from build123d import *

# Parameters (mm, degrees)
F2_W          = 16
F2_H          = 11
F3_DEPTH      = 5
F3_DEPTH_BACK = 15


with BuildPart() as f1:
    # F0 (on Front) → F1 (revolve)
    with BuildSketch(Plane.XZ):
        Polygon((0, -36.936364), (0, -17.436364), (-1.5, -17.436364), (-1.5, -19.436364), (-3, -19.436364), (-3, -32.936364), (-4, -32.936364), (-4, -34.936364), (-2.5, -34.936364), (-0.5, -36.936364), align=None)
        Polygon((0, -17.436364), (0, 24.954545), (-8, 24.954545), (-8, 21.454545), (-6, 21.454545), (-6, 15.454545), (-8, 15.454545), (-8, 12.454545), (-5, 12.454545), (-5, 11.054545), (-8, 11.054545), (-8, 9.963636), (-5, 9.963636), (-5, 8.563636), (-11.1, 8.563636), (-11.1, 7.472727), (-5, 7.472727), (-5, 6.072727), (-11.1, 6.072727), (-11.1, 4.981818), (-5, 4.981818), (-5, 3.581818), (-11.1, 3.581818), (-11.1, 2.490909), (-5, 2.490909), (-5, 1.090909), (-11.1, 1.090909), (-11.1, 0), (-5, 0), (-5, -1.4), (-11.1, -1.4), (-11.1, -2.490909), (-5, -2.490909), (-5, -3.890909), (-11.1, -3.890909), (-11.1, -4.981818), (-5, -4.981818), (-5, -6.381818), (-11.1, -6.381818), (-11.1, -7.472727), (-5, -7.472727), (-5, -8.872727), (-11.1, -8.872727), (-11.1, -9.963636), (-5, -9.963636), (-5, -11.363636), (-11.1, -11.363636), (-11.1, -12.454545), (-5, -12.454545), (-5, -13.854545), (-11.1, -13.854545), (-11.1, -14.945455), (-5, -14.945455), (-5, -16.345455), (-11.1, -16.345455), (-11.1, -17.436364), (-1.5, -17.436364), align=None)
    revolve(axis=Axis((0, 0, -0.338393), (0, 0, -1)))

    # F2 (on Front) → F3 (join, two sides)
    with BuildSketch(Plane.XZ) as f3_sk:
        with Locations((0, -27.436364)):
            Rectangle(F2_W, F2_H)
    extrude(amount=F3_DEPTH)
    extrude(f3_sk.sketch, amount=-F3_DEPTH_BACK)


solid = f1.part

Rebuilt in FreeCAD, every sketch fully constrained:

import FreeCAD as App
import Part
import Sketcher

V = App.Vector
Q = App.Units.Quantity

doc = App.newDocument("Part")
body = doc.addObject("PartDesign::Body", "Body")

# Sketch on XZ plane
sketch1 = body.newObject("Sketcher::SketchObject", "Sketch")
sketch1.AttachmentSupport = (doc.getObject("XZ_Plane"), [""])
sketch1.MapMode = "FlatFace"
sketch1.addGeometry([
    Part.LineSegment(V(0, -36.9, 0), V(0, 25, 0)),  # 0
    Part.LineSegment(V(0, 25, 0), V(-8, 25, 0)),  # 1
    Part.LineSegment(V(-8, 25, 0), V(-8, 21.5, 0)),  # 2
    Part.LineSegment(V(-8, 21.5, 0), V(-6, 21.5, 0)),  # 3
    Part.LineSegment(V(-6, 21.5, 0), V(-6, 15.5, 0)),  # 4
    Part.LineSegment(V(-6, 15.5, 0), V(-8, 15.5, 0)),  # 5
    Part.LineSegment(V(-8, 15.5, 0), V(-8, 12.5, 0)),  # 6
    Part.LineSegment(V(-8, 12.5, 0), V(-5, 12.5, 0)),  # 7
    Part.LineSegment(V(-5, 12.5, 0), V(-5, 11.1, 0)),  # 8
    Part.LineSegment(V(-5, 11.1, 0), V(-8, 11.1, 0)),  # 9
    Part.LineSegment(V(-8, 11.1, 0), V(-8, 10, 0)),  # 10
    Part.LineSegment(V(-8, 10, 0), V(-5, 10, 0)),  # 11
    Part.LineSegment(V(-5, 10, 0), V(-5, 8.6, 0)),  # 12
    Part.LineSegment(V(-5, 8.6, 0), V(-11.1, 8.6, 0)),  # 13
    Part.LineSegment(V(-11.1, 8.6, 0), V(-11.1, 7.5, 0)),  # 14
    Part.LineSegment(V(-11.1, 7.5, 0), V(-5, 7.5, 0)),  # 15
    Part.LineSegment(V(-5, 7.5, 0), V(-5, 6.1, 0)),  # 16
    Part.LineSegment(V(-5, 6.1, 0), V(-11.1, 6.1, 0)),  # 17
    Part.LineSegment(V(-11.1, 6.1, 0), V(-11.1, 5, 0)),  # 18
    Part.LineSegment(V(-11.1, 5, 0), V(-5, 5, 0)),  # 19
    Part.LineSegment(V(-5, 5, 0), V(-5, 3.6, 0)),  # 20
    Part.LineSegment(V(-5, 3.6, 0), V(-11.1, 3.6, 0)),  # 21
    Part.LineSegment(V(-11.1, 3.6, 0), V(-11.1, 2.5, 0)),  # 22
    Part.LineSegment(V(-11.1, 2.5, 0), V(-5, 2.5, 0)),  # 23
    Part.LineSegment(V(-5, 2.5, 0), V(-5, 1.1, 0)),  # 24
    Part.LineSegment(V(-5, 1.1, 0), V(-11.1, 1.1, 0)),  # 25
    Part.LineSegment(V(-11.1, 1.1, 0), V(-11.1, 0, 0)),  # 26
    Part.LineSegment(V(-11.1, 0, 0), V(-5, 0, 0)),  # 27
    Part.LineSegment(V(-5, 0, 0), V(-5, -1.4, 0)),  # 28
    Part.LineSegment(V(-5, -1.4, 0), V(-11.1, -1.4, 0)),  # 29
    Part.LineSegment(V(-11.1, -1.4, 0), V(-11.1, -2.5, 0)),  # 30
    Part.LineSegment(V(-11.1, -2.5, 0), V(-5, -2.5, 0)),  # 31
    Part.LineSegment(V(-5, -2.5, 0), V(-5, -3.9, 0)),  # 32
    Part.LineSegment(V(-5, -3.9, 0), V(-11.1, -3.9, 0)),  # 33
    Part.LineSegment(V(-11.1, -3.9, 0), V(-11.1, -5, 0)),  # 34
    Part.LineSegment(V(-11.1, -5, 0), V(-5, -5, 0)),  # 35
    Part.LineSegment(V(-5, -5, 0), V(-5, -6.4, 0)),  # 36
    Part.LineSegment(V(-5, -6.4, 0), V(-11.1, -6.4, 0)),  # 37
    Part.LineSegment(V(-11.1, -6.4, 0), V(-11.1, -7.5, 0)),  # 38
    Part.LineSegment(V(-11.1, -7.5, 0), V(-5, -7.5, 0)),  # 39
    Part.LineSegment(V(-5, -7.5, 0), V(-5, -8.9, 0)),  # 40
    Part.LineSegment(V(-5, -8.9, 0), V(-11.1, -8.9, 0)),  # 41
    Part.LineSegment(V(-11.1, -8.9, 0), V(-11.1, -10, 0)),  # 42
    Part.LineSegment(V(-11.1, -10, 0), V(-5, -10, 0)),  # 43
    Part.LineSegment(V(-5, -10, 0), V(-5, -11.4, 0)),  # 44
    Part.LineSegment(V(-5, -11.4, 0), V(-11.1, -11.4, 0)),  # 45
    Part.LineSegment(V(-11.1, -11.4, 0), V(-11.1, -12.5, 0)),  # 46
    Part.LineSegment(V(-11.1, -12.5, 0), V(-5, -12.5, 0)),  # 47
    Part.LineSegment(V(-5, -12.5, 0), V(-5, -13.9, 0)),  # 48
    Part.LineSegment(V(-5, -13.9, 0), V(-11.1, -13.9, 0)),  # 49
    Part.LineSegment(V(-11.1, -13.9, 0), V(-11.1, -14.9, 0)),  # 50
    Part.LineSegment(V(-11.1, -14.9, 0), V(-5, -14.9, 0)),  # 51
    Part.LineSegment(V(-5, -14.9, 0), V(-5, -16.3, 0)),  # 52
    Part.LineSegment(V(-5, -16.3, 0), V(-11.1, -16.3, 0)),  # 53
    Part.LineSegment(V(-11.1, -16.3, 0), V(-11.1, -17.4, 0)),  # 54
    Part.LineSegment(V(-11.1, -17.4, 0), V(-1.5, -17.4, 0)),  # 55
    Part.LineSegment(V(-1.5, -17.4, 0), V(-1.5, -19.4, 0)),  # 56
    Part.LineSegment(V(-1.5, -19.4, 0), V(-3, -19.4, 0)),  # 57
    Part.LineSegment(V(-3, -19.4, 0), V(-3, -32.9, 0)),  # 58
    Part.LineSegment(V(-3, -32.9, 0), V(-4, -32.9, 0)),  # 59
    Part.LineSegment(V(-4, -32.9, 0), V(-4, -34.9, 0)),  # 60
    Part.LineSegment(V(-4, -34.9, 0), V(-2.5, -34.9, 0)),  # 61
    Part.LineSegment(V(-2.5, -34.9, 0), V(-0.5, -36.9, 0)),  # 62
    Part.LineSegment(V(-0.5, -36.9, 0), V(0, -36.9, 0)),  # 63
], False)
sketch1.addConstraint([
    Sketcher.Constraint("Coincident", 0, 2, 1, 1),
    Sketcher.Constraint("Coincident", 1, 2, 2, 1),
    Sketcher.Constraint("Coincident", 2, 2, 3, 1),
    Sketcher.Constraint("Coincident", 3, 2, 4, 1),
    Sketcher.Constraint("Coincident", 4, 2, 5, 1),
    Sketcher.Constraint("Coincident", 5, 2, 6, 1),
    Sketcher.Constraint("Coincident", 6, 2, 7, 1),
    Sketcher.Constraint("Coincident", 7, 2, 8, 1),
    Sketcher.Constraint("Coincident", 8, 2, 9, 1),
    Sketcher.Constraint("Coincident", 9, 2, 10, 1),
    Sketcher.Constraint("Coincident", 10, 2, 11, 1),
    Sketcher.Constraint("Coincident", 11, 2, 12, 1),
    Sketcher.Constraint("Coincident", 12, 2, 13, 1),
    Sketcher.Constraint("Coincident", 13, 2, 14, 1),
    Sketcher.Constraint("Coincident", 14, 2, 15, 1),
    Sketcher.Constraint("Coincident", 15, 2, 16, 1),
    Sketcher.Constraint("Coincident", 16, 2, 17, 1),
    Sketcher.Constraint("Coincident", 17, 2, 18, 1),
    Sketcher.Constraint("Coincident", 18, 2, 19, 1),
    Sketcher.Constraint("Coincident", 19, 2, 20, 1),
    Sketcher.Constraint("Coincident", 20, 2, 21, 1),
    Sketcher.Constraint("Coincident", 21, 2, 22, 1),
    Sketcher.Constraint("Coincident", 22, 2, 23, 1),
    Sketcher.Constraint("Coincident", 23, 2, 24, 1),
    Sketcher.Constraint("Coincident", 24, 2, 25, 1),
    Sketcher.Constraint("Coincident", 25, 2, 26, 1),
    Sketcher.Constraint("Coincident", 26, 2, 27, 1),
    Sketcher.Constraint("Coincident", 27, 2, 28, 1),
    Sketcher.Constraint("Coincident", 28, 2, 29, 1),
    Sketcher.Constraint("Coincident", 29, 2, 30, 1),
    Sketcher.Constraint("Coincident", 30, 2, 31, 1),
    Sketcher.Constraint("Coincident", 31, 2, 32, 1),
    Sketcher.Constraint("Coincident", 32, 2, 33, 1),
    Sketcher.Constraint("Coincident", 33, 2, 34, 1),
    Sketcher.Constraint("Coincident", 34, 2, 35, 1),
    Sketcher.Constraint("Coincident", 35, 2, 36, 1),
    Sketcher.Constraint("Coincident", 36, 2, 37, 1),
    Sketcher.Constraint("Coincident", 37, 2, 38, 1),
    Sketcher.Constraint("Coincident", 38, 2, 39, 1),
    Sketcher.Constraint("Coincident", 39, 2, 40, 1),
    Sketcher.Constraint("Coincident", 40, 2, 41, 1),
    Sketcher.Constraint("Coincident", 41, 2, 42, 1),
    Sketcher.Constraint("Coincident", 42, 2, 43, 1),
    Sketcher.Constraint("Coincident", 43, 2, 44, 1),
    Sketcher.Constraint("Coincident", 44, 2, 45, 1),
    Sketcher.Constraint("Coincident", 45, 2, 46, 1),
    Sketcher.Constraint("Coincident", 46, 2, 47, 1),
    Sketcher.Constraint("Coincident", 47, 2, 48, 1),
    Sketcher.Constraint("Coincident", 48, 2, 49, 1),
    Sketcher.Constraint("Coincident", 49, 2, 50, 1),
    Sketcher.Constraint("Coincident", 50, 2, 51, 1),
    Sketcher.Constraint("Coincident", 51, 2, 52, 1),
    Sketcher.Constraint("Coincident", 52, 2, 53, 1),
    Sketcher.Constraint("Coincident", 53, 2, 54, 1),
    Sketcher.Constraint("Coincident", 54, 2, 55, 1),
    Sketcher.Constraint("Coincident", 55, 2, 56, 1),
    Sketcher.Constraint("Coincident", 56, 2, 57, 1),
    Sketcher.Constraint("Coincident", 57, 2, 58, 1),
    Sketcher.Constraint("Coincident", 58, 2, 59, 1),
    Sketcher.Constraint("Coincident", 59, 2, 60, 1),
    Sketcher.Constraint("Coincident", 60, 2, 61, 1),
    Sketcher.Constraint("Coincident", 61, 2, 62, 1),
    Sketcher.Constraint("Coincident", 62, 2, 63, 1),
    Sketcher.Constraint("Coincident", 63, 2, 0, 1),
    Sketcher.Constraint("Vertical", 0),
    Sketcher.Constraint("Horizontal", 1),
    Sketcher.Constraint("Vertical", 2),
    Sketcher.Constraint("Horizontal", 3),
    Sketcher.Constraint("Vertical", 4),
    Sketcher.Constraint("Horizontal", 5),
    Sketcher.Constraint("Vertical", 6),
    Sketcher.Constraint("Horizontal", 7),
    Sketcher.Constraint("Vertical", 8),
    Sketcher.Constraint("Horizontal", 9),
    Sketcher.Constraint("Vertical", 10),
    Sketcher.Constraint("Horizontal", 11),
    Sketcher.Constraint("Vertical", 12),
    Sketcher.Constraint("Horizontal", 13),
    Sketcher.Constraint("Vertical", 14),
    Sketcher.Constraint("Horizontal", 15),
    Sketcher.Constraint("Vertical", 16),
    Sketcher.Constraint("Horizontal", 17),
    Sketcher.Constraint("Vertical", 18),
    Sketcher.Constraint("Horizontal", 19),
    Sketcher.Constraint("Vertical", 20),
    Sketcher.Constraint("Horizontal", 21),
    Sketcher.Constraint("Vertical", 22),
    Sketcher.Constraint("Horizontal", 23),
    Sketcher.Constraint("Vertical", 24),
    Sketcher.Constraint("Horizontal", 25),
    Sketcher.Constraint("Vertical", 26),
    Sketcher.Constraint("Horizontal", 27),
    Sketcher.Constraint("Vertical", 28),
    Sketcher.Constraint("Horizontal", 29),
    Sketcher.Constraint("Vertical", 30),
    Sketcher.Constraint("Horizontal", 31),
    Sketcher.Constraint("Vertical", 32),
    Sketcher.Constraint("Horizontal", 33),
    Sketcher.Constraint("Vertical", 34),
    Sketcher.Constraint("Horizontal", 35),
    Sketcher.Constraint("Vertical", 36),
    Sketcher.Constraint("Horizontal", 37),
    Sketcher.Constraint("Vertical", 38),
    Sketcher.Constraint("Horizontal", 39),
    Sketcher.Constraint("Vertical", 40),
    Sketcher.Constraint("Horizontal", 41),
    Sketcher.Constraint("Vertical", 42),
    Sketcher.Constraint("Horizontal", 43),
    Sketcher.Constraint("Vertical", 44),
    Sketcher.Constraint("Horizontal", 45),
    Sketcher.Constraint("Vertical", 46),
    Sketcher.Constraint("Horizontal", 47),
    Sketcher.Constraint("Vertical", 48),
    Sketcher.Constraint("Horizontal", 49),
    Sketcher.Constraint("Vertical", 50),
    Sketcher.Constraint("Horizontal", 51),
    Sketcher.Constraint("Vertical", 52),
    Sketcher.Constraint("Horizontal", 53),
    Sketcher.Constraint("Vertical", 54),
    Sketcher.Constraint("Horizontal", 55),
    Sketcher.Constraint("Vertical", 56),
    Sketcher.Constraint("Horizontal", 57),
    Sketcher.Constraint("Vertical", 58),
    Sketcher.Constraint("Horizontal", 59),
    Sketcher.Constraint("Vertical", 60),
    Sketcher.Constraint("Horizontal", 61),
    Sketcher.Constraint("Horizontal", 63),
    Sketcher.Constraint("Symmetric", 22, 2, 30, 2, -1),
    Sketcher.Constraint("Symmetric", 18, 2, 34, 2, -1),
    Sketcher.Constraint("Symmetric", 14, 2, 38, 2, -1),
    Sketcher.Constraint("Symmetric", 11, 2, 43, 2, -1),
    Sketcher.Constraint("Symmetric", 7, 2, 47, 2, -1),
    Sketcher.Constraint("PointOnObject", 0, 2, -2),
    Sketcher.Constraint("PointOnObject", 26, 2, -1),
    Sketcher.Constraint("Vertical", 2, 2, 5, 2),
    Sketcher.Constraint("Vertical", 6, 2, 9, 2),
    Sketcher.Constraint("Vertical", 8, 2, 11, 2),
    Sketcher.Constraint("Vertical", 12, 2, 15, 2),
    Sketcher.Constraint("Vertical", 14, 2, 17, 2),
    Sketcher.Constraint("Vertical", 16, 2, 19, 2),
    Sketcher.Constraint("Vertical", 18, 2, 21, 2),
    Sketcher.Constraint("Vertical", 20, 2, 23, 2),
    Sketcher.Constraint("Vertical", 22, 2, 25, 2),
    Sketcher.Constraint("Vertical", 24, 2, 27, 2),
    Sketcher.Constraint("Vertical", 28, 2, 31, 2),
    Sketcher.Constraint("Vertical", 32, 2, 35, 2),
    Sketcher.Constraint("Vertical", 36, 2, 39, 2),
    Sketcher.Constraint("Vertical", 38, 2, 41, 2),
    Sketcher.Constraint("Vertical", 42, 2, 45, 2),
    Sketcher.Constraint("Vertical", 46, 2, 49, 2),
    Sketcher.Constraint("Vertical", 48, 2, 51, 2),
    Sketcher.Constraint("Vertical", 50, 2, 53, 2),
    Sketcher.Constraint("Equal", 57, 61),
    Sketcher.Constraint("Equal", 11, 6),
    Sketcher.Constraint("Equal", 8, 12),
    Sketcher.Constraint("Equal", 10, 14),
    Sketcher.Constraint("Equal", 12, 16),
    Sketcher.Constraint("Equal", 14, 18),
    Sketcher.Constraint("Equal", 16, 20),
    Sketcher.Constraint("Equal", 18, 22),
    Sketcher.Constraint("Equal", 20, 24),
    Sketcher.Constraint("Equal", 22, 26),
    Sketcher.Constraint("Equal", 24, 28),
    Sketcher.Constraint("Equal", 28, 32),
    Sketcher.Constraint("Equal", 32, 36),
    Sketcher.Constraint("Equal", 36, 40),
    Sketcher.Constraint("Equal", 40, 44),
    Sketcher.Constraint("Equal", 44, 48),
    Sketcher.Constraint("Equal", 46, 50),
    Sketcher.Constraint("Equal", 48, 52),
    Sketcher.Constraint("Equal", 50, 54),
    Sketcher.Constraint("Equal", 5, 56),
    Sketcher.Constraint("Equal", 56, 60),
    Sketcher.Constraint("DistanceX", 1, 2, 1, 1, 8.0),
    Sketcher.Constraint("DistanceX", 3, 1, 3, 2, 2.0),
    Sketcher.Constraint("DistanceX", 7, 1, 7, 2, 3.0),
    Sketcher.Constraint("DistanceX", 59, 2, 59, 1, 1.0),
    Sketcher.Constraint("DistanceY", 4, 2, 4, 1, 6.0),
    Sketcher.Constraint("Angle", 62, Q("-45 deg")),
    Sketcher.Constraint("DistanceX", 13, 2, 13, 1, 6.1),
    Sketcher.Constraint("DistanceX", 55, 1, 55, 2, 9.6),
    Sketcher.Constraint("DistanceX", 57, 2, 57, 1, 1.5),
    Sketcher.Constraint("DistanceX", 63, 1, 63, 2, 0.5),
    Sketcher.Constraint("DistanceY", 2, 2, 2, 1, 3.5),
    Sketcher.Constraint("DistanceY", 8, 2, 8, 1, 1.4),
    Sketcher.Constraint("DistanceY", 58, 2, 58, 1, 13.5),
    Sketcher.Constraint("DistanceY", 0, 1, 0, 2, 61.890909),
])
revolution = body.newObject("PartDesign::Revolution", "Revolution")
revolution.Profile = sketch1
revolution.ReferenceAxis = (sketch1, ["V_Axis"])
revolution.Angle = 360

# Sketch on XZ plane
sketch2 = body.newObject("Sketcher::SketchObject", "Sketch001")
sketch2.AttachmentSupport = (doc.getObject("XZ_Plane"), [""])
sketch2.MapMode = "FlatFace"
sketch2.addGeometry([
    Part.LineSegment(V(-8, -22, 0), V(-8, -33, 0)),
    Part.LineSegment(V(-8, -33, 0), V(8, -33, 0)),
    Part.LineSegment(V(8, -33, 0), V(8, -22, 0)),
    Part.LineSegment(V(8, -22, 0), V(-8, -22, 0)),
], False)
sketch2.addConstraint([
    Sketcher.Constraint("Coincident", 0, 2, 1, 1),
    Sketcher.Constraint("Coincident", 1, 2, 2, 1),
    Sketcher.Constraint("Coincident", 2, 2, 3, 1),
    Sketcher.Constraint("Coincident", 3, 2, 0, 1),
    Sketcher.Constraint("Vertical", 0),
    Sketcher.Constraint("Horizontal", 1),
    Sketcher.Constraint("Vertical", 2),
    Sketcher.Constraint("Horizontal", 3),
    Sketcher.Constraint("DistanceX", 1, 1, 1, 2, 16.0),
    Sketcher.Constraint("DistanceY", 0, 2, 0, 1, 11.0),
    Sketcher.Constraint("DistanceX", 0, 2, -1, 1, 8.0),
    Sketcher.Constraint("DistanceY", 0, 2, -1, 1, 32.936364),
])
pad1 = body.newObject("PartDesign::Pad", "Pad")
pad1.Profile = sketch2
pad1.Type = "TwoLengths"
pad1.Length = 5
pad1.Length2 = 15

doc.recompute()
